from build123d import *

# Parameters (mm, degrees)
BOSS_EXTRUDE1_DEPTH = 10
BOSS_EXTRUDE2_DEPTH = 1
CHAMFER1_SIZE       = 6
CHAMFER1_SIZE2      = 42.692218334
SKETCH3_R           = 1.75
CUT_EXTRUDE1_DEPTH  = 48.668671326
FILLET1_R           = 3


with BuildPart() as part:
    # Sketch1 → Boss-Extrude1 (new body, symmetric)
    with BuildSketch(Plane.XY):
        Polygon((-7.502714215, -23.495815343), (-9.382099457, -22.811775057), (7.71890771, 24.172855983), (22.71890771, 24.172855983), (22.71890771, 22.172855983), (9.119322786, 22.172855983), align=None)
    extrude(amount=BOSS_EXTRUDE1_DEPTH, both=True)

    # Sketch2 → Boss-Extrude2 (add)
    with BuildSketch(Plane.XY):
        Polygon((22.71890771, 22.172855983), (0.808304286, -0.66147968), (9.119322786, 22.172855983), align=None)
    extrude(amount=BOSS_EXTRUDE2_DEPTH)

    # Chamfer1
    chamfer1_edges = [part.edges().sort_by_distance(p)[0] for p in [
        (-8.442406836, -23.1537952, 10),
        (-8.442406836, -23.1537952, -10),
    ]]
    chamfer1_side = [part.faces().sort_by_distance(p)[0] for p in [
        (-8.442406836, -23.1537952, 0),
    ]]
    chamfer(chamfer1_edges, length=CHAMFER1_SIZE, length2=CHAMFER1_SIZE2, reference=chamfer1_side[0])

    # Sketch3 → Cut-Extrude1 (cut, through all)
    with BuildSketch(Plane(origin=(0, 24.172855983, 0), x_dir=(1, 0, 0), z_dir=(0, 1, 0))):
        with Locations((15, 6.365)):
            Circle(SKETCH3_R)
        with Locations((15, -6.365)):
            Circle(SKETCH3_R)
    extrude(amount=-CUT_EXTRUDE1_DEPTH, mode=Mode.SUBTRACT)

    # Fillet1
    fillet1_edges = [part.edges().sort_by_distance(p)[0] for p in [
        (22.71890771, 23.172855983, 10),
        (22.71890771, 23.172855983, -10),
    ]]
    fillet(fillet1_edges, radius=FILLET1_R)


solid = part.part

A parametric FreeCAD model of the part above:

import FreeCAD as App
import Part
import Sketcher

V = App.Vector
Q = App.Units.Quantity


def edges_at(feature, points):
    """Names of the edges that pass closest to the given points."""
    edges = feature.Shape.Edges
    near = lambda p: min(range(len(edges)), key=lambda i: edges[i].distToShape(Part.Vertex(*p))[0])
    return sorted({f"Edge{near(p) + 1}" for p in points})


def add_polygon(sketch, points):
    """Adds a closed chain of lines whose ends are joined by coincident constraints."""
    first, n = sketch.GeometryCount, len(points)
    for a, b in zip(points, points[1:] + points[:1]):
        sketch.addGeometry(Part.LineSegment(App.Vector(*a, 0), App.Vector(*b, 0)), False)
    for i in range(n):
        sketch.addConstraint(Sketcher.Constraint("Coincident", first + i, 2, first + (i + 1) % n, 1))

doc = App.newDocument("Part")
body = doc.addObject("PartDesign::Body", "Body")

sketch1 = body.newObject("Sketcher::SketchObject", "Sketch")
sketch1.AttachmentSupport = (doc.getObject("XY_Plane"), [""])
sketch1.MapMode = "FlatFace"
add_polygon(sketch1, [(-9.4, -22.8), (-7.5, -23.5), (9.1, 22.2), (22.7, 22.2), (22.7, 24.2), (7.7, 24.2)])
sketch1.addConstraint([
    Sketcher.Constraint("Horizontal", 2),
    Sketcher.Constraint("Vertical", 3),
    Sketcher.Constraint("Horizontal", 4),
    Sketcher.Constraint("Perpendicular", 0, 1),
    Sketcher.Constraint("Parallel", 1, 5),
    Sketcher.Constraint("DistanceX", 4, 2, 4, 1, 15.0),
    Sketcher.Constraint("DistanceY", 3, 1, 3, 2, 2.0),
    Sketcher.Constraint("Angle", 0, Q("-20 deg")),
    Sketcher.Constraint("Distance", 0, 2.0),
    Sketcher.Constraint("Distance", 5, 50.0),
    Sketcher.Constraint("DistanceX", 5, 2, -1, 1, 9.382099),
    Sketcher.Constraint("DistanceY", 0, 2, -1, 1, 23.495815),
])
pad1 = body.newObject("PartDesign::Pad", "Pad")
pad1.Profile = sketch1
pad1.Length = 20
pad1.Midplane = True

sketch2 = body.newObject("Sketcher::SketchObject", "Sketch001")
sketch2.AttachmentSupport = (doc.getObject("XY_Plane"), [""])
sketch2.MapMode = "FlatFace"
add_polygon(sketch2, [(1, -1), (23, 22), (9, 22)])
sketch2.addConstraint([
    Sketcher.Constraint("Horizontal", 1),
    Sketcher.Constraint("Angle", 2, Q("-110 deg")),
    Sketcher.Constraint("Distance", 0, 31.646191),
    Sketcher.Constraint("DistanceX", 1, 2, 1, 1, 13.599585),
    Sketcher.Constraint("DistanceY", 2, 2, -1, 1, 0.66148),
    Sketcher.Constraint("DistanceX", -1, 1, 0, 2, 22.718908),
])
pad2 = body.newObject("PartDesign::Pad", "Pad001")
pad2.Profile = sketch2
pad2.Length = 1
doc.recompute()

chamfer = body.newObject("PartDesign::Chamfer", "Chamfer")
chamfer.Base = (pad2, edges_at(pad2, [(-8.442, -23.154, 10), (-8.442, -23.154, -10)]))
chamfer.ChamferType = "Two distances"
chamfer.Size = 6
chamfer.Size2 = 42.692218

sketch3 = body.newObject("Sketcher::SketchObject", "Sketch002")
sketch3.AttachmentSupport = (doc.getObject("XZ_Plane"), [""])
sketch3.MapMode = "FlatFace"
sketch3.AttachmentOffset = App.Placement(V(0, 0, -24.172856), App.Rotation())
sketch3.addGeometry([
    Part.Circle(V(15, -6.4, 0), V(0, 0, 1), 1.8),
    Part.Circle(V(15, 6.4, 0), V(0, 0, 1), 1.8),
], False)
sketch3.addConstraint([
    Sketcher.Constraint("Equal", 0, 1),
    Sketcher.Constraint("Symmetric", 0, 3, 1, 3, -1),
    Sketcher.Constraint("Diameter", 0, 3.5),
    Sketcher.Constraint("DistanceX", -1, 1, 0, 3, 15.0),
    Sketcher.Constraint("DistanceY", 0, 3, 1, 3, 12.73),
])
pocket1 = body.newObject("PartDesign::Pocket", "Pocket")
pocket1.Profile = sketch3
pocket1.Type = "ThroughAll"
pocket1.Reversed = True
doc.recompute()

fillet = body.newObject("PartDesign::Fillet", "Fillet")
fillet.Base = (pocket1, edges_at(pocket1, [(22.719, 23.173, 10), (22.719, 23.173, -10)]))
fillet.Radius = 3

doc.recompute()
